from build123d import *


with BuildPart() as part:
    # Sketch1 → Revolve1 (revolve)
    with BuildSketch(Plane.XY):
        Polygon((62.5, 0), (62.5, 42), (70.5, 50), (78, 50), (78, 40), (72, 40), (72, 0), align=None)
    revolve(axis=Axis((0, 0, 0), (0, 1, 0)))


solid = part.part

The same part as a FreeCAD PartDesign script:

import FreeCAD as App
import Part
import Sketcher
from FreeCAD import Vector
Q = App.Units.Quantity

doc = App.newDocument("Part")
params = doc.addObject("Spreadsheet::Sheet", "Params")
for row, (alias, value) in enumerate([
    ("sketch1_width", "6 mm"),
    ("sketch1_height", "42 mm"),
    ("sketch1_height2", "40 mm"),
    ("sketch1_height3", "10 mm"),
    ("sketch1_width2", "9.5 mm"),
    ("revolution_angle", "360 deg"),
], start=1):
    params.set(f"A{row}", alias)
    params.set(f"B{row}", "=" + value)
    params.setAlias(f"B{row}", alias)

body = doc.addObject("PartDesign::Body", "Body")

# Sketch on XY plane
sketch1 = body.newObject("Sketcher::SketchObject", "Sketch")
sketch1.AttachmentSupport = (doc.getObject("XY_Plane"), [""])
sketch1.MapMode = "FlatFace"
sketch1.addGeometry(Part.LineSegment(Vector(62, 42, 0), Vector(62, 0, 0)), False)
sketch1.addGeometry(Part.LineSegment(Vector(62, 0, 0), Vector(72, 0, 0)), False)
sketch1.addGeometry(Part.LineSegment(Vector(72, 0, 0), Vector(72, 40, 0)), False)
sketch1.addGeometry(Part.LineSegment(Vector(72, 40, 0), Vector(78, 40, 0)), False)
sketch1.addGeometry(Part.LineSegment(Vector(78, 40, 0), Vector(78, 50, 0)), False)
sketch1.addGeometry(Part.LineSegment(Vector(78, 50, 0), Vector(70, 50, 0)), False)
sketch1.addGeometry(Part.LineSegment(Vector(70, 50, 0), Vector(62, 42, 0)), False)
sketch1.addConstraint(Sketcher.Constraint("Coincident", 0, 2, 1, 1))
sketch1.addConstraint(Sketcher.Constraint("Coincident", 1, 2, 2, 1))
sketch1.addConstraint(Sketcher.Constraint("Coincident", 2, 2, 3, 1))
sketch1.addConstraint(Sketcher.Constraint("Coincident", 3, 2, 4, 1))
sketch1.addConstraint(Sketcher.Constraint("Coincident", 4, 2, 5, 1))
sketch1.addConstraint(Sketcher.Constraint("Coincident", 5, 2, 6, 1))
sketch1.addConstraint(Sketcher.Constraint("Coincident", 6, 2, 0, 1))
sketch1.addConstraint(Sketcher.Constraint("Vertical", 0))
sketch1.addConstraint(Sketcher.Constraint("Horizontal", 1))
sketch1.addConstraint(Sketcher.Constraint("Vertical", 2))
sketch1.addConstraint(Sketcher.Constraint("Horizontal", 3))
sketch1.addConstraint(Sketcher.Constraint("Vertical", 4))
sketch1.addConstraint(Sketcher.Constraint("Horizontal", 5))
sketch1.addConstraint(Sketcher.Constraint("PointOnObject", 0, 2, -1))
sketch1.addConstraint(Sketcher.Constraint("DistanceX", 3, 1, 3, 2, 6.0))
sketch1.addConstraint(Sketcher.Constraint("DistanceY", 0, 2, 0, 1, 42.0))
sketch1.addConstraint(Sketcher.Constraint("DistanceY", 2, 1, 2, 2, 40.0))
sketch1.addConstraint(Sketcher.Constraint("DistanceY", 4, 1, 4, 2, 10.0))
sketch1.addConstraint(Sketcher.Constraint("Angle", 6, Q("-135 deg")))
sketch1.addConstraint(Sketcher.Constraint("DistanceX", 1, 1, 1, 2, 9.5))
sketch1.addConstraint(Sketcher.Constraint("DistanceX", -1, 1, 1, 2, 72.0))
sketch1.setExpression("Constraints[14]", "Params.sketch1_width")
sketch1.setExpression("Constraints[15]", "Params.sketch1_height")
sketch1.setExpression("Constraints[16]", "Params.sketch1_height2")
sketch1.setExpression("Constraints[17]", "Params.sketch1_height3")
sketch1.setExpression("Constraints[19]", "Params.sketch1_width2")
revolution = body.newObject("PartDesign::Revolution", "Revolution")
revolution.Profile = sketch1
revolution.ReferenceAxis = (sketch1, ["V_Axis"])
revolution.setExpression("Angle", "Params.revolution_angle")

doc.recompute()
